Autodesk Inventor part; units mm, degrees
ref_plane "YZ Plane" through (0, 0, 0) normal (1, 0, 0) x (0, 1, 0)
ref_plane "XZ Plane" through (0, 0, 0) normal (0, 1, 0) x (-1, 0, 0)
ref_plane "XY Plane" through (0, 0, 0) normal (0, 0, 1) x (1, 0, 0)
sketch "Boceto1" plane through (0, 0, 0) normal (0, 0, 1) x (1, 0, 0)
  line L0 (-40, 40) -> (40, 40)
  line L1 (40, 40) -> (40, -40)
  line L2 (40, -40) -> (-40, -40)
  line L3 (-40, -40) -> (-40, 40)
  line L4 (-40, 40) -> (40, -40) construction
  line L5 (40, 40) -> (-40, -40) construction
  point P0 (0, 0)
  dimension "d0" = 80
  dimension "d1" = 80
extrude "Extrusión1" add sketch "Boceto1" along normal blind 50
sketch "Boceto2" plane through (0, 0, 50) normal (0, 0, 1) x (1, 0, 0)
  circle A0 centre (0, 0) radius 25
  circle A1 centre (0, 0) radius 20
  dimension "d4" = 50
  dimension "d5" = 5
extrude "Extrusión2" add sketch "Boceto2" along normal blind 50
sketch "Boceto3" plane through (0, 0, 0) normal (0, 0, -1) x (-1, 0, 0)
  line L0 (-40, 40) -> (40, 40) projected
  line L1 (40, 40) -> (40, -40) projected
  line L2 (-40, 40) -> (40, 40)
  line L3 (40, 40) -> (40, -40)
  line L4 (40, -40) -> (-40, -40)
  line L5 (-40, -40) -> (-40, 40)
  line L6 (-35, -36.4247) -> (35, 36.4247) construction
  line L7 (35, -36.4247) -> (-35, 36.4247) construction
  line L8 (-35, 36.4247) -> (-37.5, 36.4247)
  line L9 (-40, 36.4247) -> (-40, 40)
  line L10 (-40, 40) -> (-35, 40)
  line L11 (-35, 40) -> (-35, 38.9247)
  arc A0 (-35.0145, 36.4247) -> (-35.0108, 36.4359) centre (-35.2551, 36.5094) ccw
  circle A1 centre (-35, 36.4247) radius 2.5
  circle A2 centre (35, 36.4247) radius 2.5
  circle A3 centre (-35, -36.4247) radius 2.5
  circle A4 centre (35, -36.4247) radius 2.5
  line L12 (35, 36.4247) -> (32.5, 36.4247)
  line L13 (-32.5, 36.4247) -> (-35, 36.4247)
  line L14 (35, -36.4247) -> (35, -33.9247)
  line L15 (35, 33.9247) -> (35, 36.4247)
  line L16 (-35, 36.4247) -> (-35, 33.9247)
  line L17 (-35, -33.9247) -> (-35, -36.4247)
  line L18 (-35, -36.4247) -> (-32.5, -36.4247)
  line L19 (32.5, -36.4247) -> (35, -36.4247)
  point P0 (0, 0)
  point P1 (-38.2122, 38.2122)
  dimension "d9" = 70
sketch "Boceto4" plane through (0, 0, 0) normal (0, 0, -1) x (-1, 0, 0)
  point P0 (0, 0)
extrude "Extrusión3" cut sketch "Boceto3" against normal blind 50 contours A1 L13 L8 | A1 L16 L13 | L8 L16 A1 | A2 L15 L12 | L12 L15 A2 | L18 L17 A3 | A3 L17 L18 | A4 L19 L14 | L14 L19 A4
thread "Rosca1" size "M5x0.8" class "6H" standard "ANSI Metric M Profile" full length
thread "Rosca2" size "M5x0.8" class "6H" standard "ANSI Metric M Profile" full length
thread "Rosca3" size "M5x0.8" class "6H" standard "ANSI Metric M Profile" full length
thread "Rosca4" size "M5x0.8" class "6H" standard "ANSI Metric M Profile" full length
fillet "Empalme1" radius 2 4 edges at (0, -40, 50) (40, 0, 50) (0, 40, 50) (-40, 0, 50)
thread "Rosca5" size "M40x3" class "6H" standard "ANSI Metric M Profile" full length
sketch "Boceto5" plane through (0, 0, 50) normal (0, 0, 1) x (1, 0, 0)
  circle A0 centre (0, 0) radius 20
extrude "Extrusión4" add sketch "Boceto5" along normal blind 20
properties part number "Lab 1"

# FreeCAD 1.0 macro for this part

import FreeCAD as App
import Part
import Sketcher

V = App.Vector


def edges_at(feature, points):
    """Names of the edges that pass closest to the given points."""
    edges = feature.Shape.Edges
    near = lambda p: min(range(len(edges)), key=lambda i: edges[i].distToShape(Part.Vertex(*p))[0])
    return sorted({f"Edge{near(p) + 1}" for p in points})


def add_polygon(sketch, points):
    """Adds a closed chain of lines whose ends are joined by coincident constraints."""
    first, n = sketch.GeometryCount, len(points)
    for a, b in zip(points, points[1:] + points[:1]):
        sketch.addGeometry(Part.LineSegment(App.Vector(*a, 0), App.Vector(*b, 0)), False)
    for i in range(n):
        sketch.addConstraint(Sketcher.Constraint("Coincident", first + i, 2, first + (i + 1) % n, 1))

doc = App.newDocument("Part")
body = doc.addObject("PartDesign::Body", "Body")

sketch1 = body.newObject("Sketcher::SketchObject", "Sketch")
sketch1.AttachmentSupport = (doc.getObject("XY_Plane"), [""])
sketch1.MapMode = "FlatFace"
add_polygon(sketch1, [(40, 40), (-40, 40), (-40, -40), (40, -40)])
sketch1.addConstraint([
    Sketcher.Constraint("Horizontal", 0),
    Sketcher.Constraint("Vertical", 1),
    Sketcher.Constraint("Horizontal", 2),
    Sketcher.Constraint("Vertical", 3),
    Sketcher.Constraint("Symmetric", 0, 2, 2, 2, -1, 1),
    Sketcher.Constraint("Equal", 2, 1),
    Sketcher.Constraint("DistanceX", 0, 2, 0, 1, 80.0),
])
pad1 = body.newObject("PartDesign::Pad", "Pad")
pad1.Profile = sketch1
pad1.Length = 50

sketch2 = body.newObject("Sketcher::SketchObject", "Sketch001")
sketch2.AttachmentSupport = (doc.getObject("XY_Plane"), [""])
sketch2.MapMode = "FlatFace"
sketch2.AttachmentOffset = App.Placement(V(0, 0, 50), App.Rotation())
sketch2.addGeometry([
    Part.Circle(V(0, 0, 0), V(0, 0, 1), 25),
    Part.Circle(V(0, 0, 0), V(0, 0, 1), 20),
], False)
sketch2.addConstraint([
    Sketcher.Constraint("Coincident", 0, 3, -1, 1),
    Sketcher.Constraint("Coincident", 1, 3, -1, 1),
    Sketcher.Constraint("Diameter", 0, 50.0),
    Sketcher.Constraint("Diameter", 1, 40.0),
])
pad2 = body.newObject("PartDesign::Pad", "Pad001")
pad2.Profile = sketch2
pad2.Length = 50

sketch3 = body.newObject("Sketcher::SketchObject", "Sketch002")
sketch3.AttachmentSupport = (doc.getObject("XY_Plane"), [""])
sketch3.MapMode = "FlatFace"
sketch3.addGeometry([
    Part.Circle(V(35, 36.4, 0), V(0, 0, 1), 2.5),
    Part.Circle(V(-35, 36.4, 0), V(0, 0, 1), 2.5),
    Part.Circle(V(35, -36.4, 0), V(0, 0, 1), 2.5),
    Part.Circle(V(-35, -36.4, 0), V(0, 0, 1), 2.5),
], False)
sketch3.addConstraint([
    Sketcher.Constraint("Equal", 0, 1),
    Sketcher.Constraint("Equal", 1, 2),
    Sketcher.Constraint("Equal", 2, 3),
    Sketcher.Constraint("Symmetric", 1, 3, 2, 3, -1, 1),
    Sketcher.Constraint("Symmetric", 0, 3, 3, 3, -1, 1),
    Sketcher.Constraint("Symmetric", 0, 3, 1, 3, -2),
    Sketcher.Constraint("Diameter", 0, 5.0),
    Sketcher.Constraint("DistanceX", 1, 3, 0, 3, 70.0),
    Sketcher.Constraint("DistanceY", -1, 1, 0, 3, 36.4247),
])
pocket1 = body.newObject("PartDesign::Pocket", "Pocket")
pocket1.Profile = sketch3
pocket1.Length = 50
pocket1.Reversed = True
doc.recompute()

fillet = body.newObject("PartDesign::Fillet", "Fillet")
fillet.Base = (pocket1, edges_at(pocket1, [
    (0, -40, 50),
    (40, 0, 50),
    (0, 40, 50),
    (-40, 0, 50),
]))
fillet.Radius = 2

sketch4 = body.newObject("Sketcher::SketchObject", "Sketch003")
sketch4.AttachmentSupport = (doc.getObject("XY_Plane"), [""])
sketch4.MapMode = "FlatFace"
sketch4.AttachmentOffset = App.Placement(V(0, 0, 50), App.Rotation())
sketch4.addGeometry(Part.Circle(V(0, 0, 0), V(0, 0, 1), 20), False)
sketch4.addConstraint([
    Sketcher.Constraint("Coincident", 0, 3, -1, 1),
    Sketcher.Constraint("Diameter", 0, 40.0),
])
pad3 = body.newObject("PartDesign::Pad", "Pad002")
pad3.Profile = sketch4
pad3.Length = 20

doc.recompute()
